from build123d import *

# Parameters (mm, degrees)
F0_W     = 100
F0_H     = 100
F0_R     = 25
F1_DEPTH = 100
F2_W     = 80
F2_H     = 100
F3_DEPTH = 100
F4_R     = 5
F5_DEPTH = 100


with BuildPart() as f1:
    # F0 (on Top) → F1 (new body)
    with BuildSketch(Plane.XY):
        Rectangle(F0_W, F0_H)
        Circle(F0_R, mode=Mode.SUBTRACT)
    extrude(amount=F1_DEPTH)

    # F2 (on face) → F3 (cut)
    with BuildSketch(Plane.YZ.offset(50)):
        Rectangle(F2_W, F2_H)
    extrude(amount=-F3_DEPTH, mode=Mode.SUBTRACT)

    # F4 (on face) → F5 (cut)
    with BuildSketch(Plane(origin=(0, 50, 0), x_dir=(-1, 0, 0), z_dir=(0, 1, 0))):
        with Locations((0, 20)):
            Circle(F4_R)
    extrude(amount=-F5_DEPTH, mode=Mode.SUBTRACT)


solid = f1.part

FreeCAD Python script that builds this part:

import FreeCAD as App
import Part
import Sketcher

doc = App.newDocument("Part")
params = doc.addObject("Spreadsheet::Sheet", "Params")
for row, (alias, value) in enumerate([
    ("sketch1_diameter", "50 mm"),
    ("sketch1_width", "100 mm"),
    ("pad1_length", "100 mm"),
    ("sketch2_width", "80 mm"),
    ("sketch2_height", "100 mm"),
    ("pocket1_length", "100 mm"),
    ("sketch3_diameter", "10 mm"),
    ("pocket2_length", "100 mm"),
], start=1):
    params.set(f"A{row}", alias)
    params.set(f"B{row}", "=" + value)
    params.setAlias(f"B{row}", alias)

body = doc.addObject("PartDesign::Body", "Body")

# Sketch on XY plane
sketch1 = body.newObject("Sketcher::SketchObject", "Sketch")
sketch1.AttachmentSupport = (doc.getObject("XY_Plane"), [""])
sketch1.MapMode = "FlatFace"
sketch1.addGeometry(Part.LineSegment(App.Vector(-50, 50, 0), App.Vector(-50, -50, 0)), False)
sketch1.addGeometry(Part.LineSegment(App.Vector(-50, -50, 0), App.Vector(50, -50, 0)), False)
sketch1.addGeometry(Part.LineSegment(App.Vector(50, -50, 0), App.Vector(50, 50, 0)), False)
sketch1.addGeometry(Part.LineSegment(App.Vector(50, 50, 0), App.Vector(-50, 50, 0)), False)
sketch1.addGeometry(Part.Circle(App.Vector(0, 0, 0), App.Vector(0, 0, 1), 25), False)
sketch1.addConstraint(Sketcher.Constraint("Coincident", 0, 2, 1, 1))
sketch1.addConstraint(Sketcher.Constraint("Coincident", 1, 2, 2, 1))
sketch1.addConstraint(Sketcher.Constraint("Coincident", 2, 2, 3, 1))
sketch1.addConstraint(Sketcher.Constraint("Coincident", 3, 2, 0, 1))
sketch1.addConstraint(Sketcher.Constraint("Vertical", 0))
sketch1.addConstraint(Sketcher.Constraint("Horizontal", 1))
sketch1.addConstraint(Sketcher.Constraint("Vertical", 2))
sketch1.addConstraint(Sketcher.Constraint("Horizontal", 3))
sketch1.addConstraint(Sketcher.Constraint("Coincident", 4, 3, -1, 1))
sketch1.addConstraint(Sketcher.Constraint("Symmetric", 0, 2, 2, 2, -1, 1))
sketch1.addConstraint(Sketcher.Constraint("Equal", 3, 0))
sketch1.addConstraint(Sketcher.Constraint("Diameter", 4, 50.0))
sketch1.addConstraint(Sketcher.Constraint("DistanceX", 1, 1, 1, 2, 100.0))
sketch1.setExpression("Constraints[11]", "Params.sketch1_diameter")
sketch1.setExpression("Constraints[12]", "Params.sketch1_width")
pad1 = body.newObject("PartDesign::Pad", "Pad")
pad1.Profile = sketch1
pad1.setExpression("Length", "Params.pad1_length")

# Sketch on YZ plane
sketch2 = body.newObject("Sketcher::SketchObject", "Sketch001")
sketch2.AttachmentSupport = (doc.getObject("YZ_Plane"), [""])
sketch2.MapMode = "FlatFace"
sketch2.AttachmentOffset = App.Placement(App.Vector(0, 0, 50), App.Rotation())
sketch2.addGeometry(Part.LineSegment(App.Vector(-40, 50, 0), App.Vector(-40, -50, 0)), False)
sketch2.addGeometry(Part.LineSegment(App.Vector(-40, -50, 0), App.Vector(40, -50, 0)), False)
sketch2.addGeometry(Part.LineSegment(App.Vector(40, -50, 0), App.Vector(40, 50, 0)), False)
sketch2.addGeometry(Part.LineSegment(App.Vector(40, 50, 0), App.Vector(-40, 50, 0)), False)
sketch2.addConstraint(Sketcher.Constraint("Coincident", 0, 2, 1, 1))
sketch2.addConstraint(Sketcher.Constraint("Coincident", 1, 2, 2, 1))
sketch2.addConstraint(Sketcher.Constraint("Coincident", 2, 2, 3, 1))
sketch2.addConstraint(Sketcher.Constraint("Coincident", 3, 2, 0, 1))
sketch2.addConstraint(Sketcher.Constraint("Vertical", 0))
sketch2.addConstraint(Sketcher.Constraint("Horizontal", 1))
sketch2.addConstraint(Sketcher.Constraint("Vertical", 2))
sketch2.addConstraint(Sketcher.Constraint("Horizontal", 3))
sketch2.addConstraint(Sketcher.Constraint("Symmetric", 0, 2, 2, 2, -1, 1))
sketch2.addConstraint(Sketcher.Constraint("DistanceX", 1, 1, 1, 2, 80.0))
sketch2.addConstraint(Sketcher.Constraint("DistanceY", 0, 2, 0, 1, 100.0))
sketch2.setExpression("Constraints[9]", "Params.sketch2_width")
sketch2.setExpression("Constraints[10]", "Params.sketch2_height")
pocket1 = body.newObject("PartDesign::Pocket", "Pocket")
pocket1.Profile = sketch2
pocket1.setExpression("Length", "Params.pocket1_length")

# Sketch on XZ plane
sketch3 = body.newObject("Sketcher::SketchObject", "Sketch002")
sketch3.AttachmentSupport = (doc.getObject("XZ_Plane"), [""])
sketch3.MapMode = "FlatFace"
sketch3.AttachmentOffset = App.Placement(App.Vector(0, 0, -50), App.Rotation())
sketch3.addGeometry(Part.Circle(App.Vector(0, 20, 0), App.Vector(0, 0, 1), 5), False)
sketch3.addConstraint(Sketcher.Constraint("PointOnObject", 0, 3, -2))
sketch3.addConstraint(Sketcher.Constraint("Diameter", 0, 10.0))
sketch3.addConstraint(Sketcher.Constraint("DistanceY", -1, 1, 0, 3, 20.0))
sketch3.setExpression("Constraints[1]", "Params.sketch3_diameter")
pocket2 = body.newObject("PartDesign::Pocket", "Pocket001")
pocket2.Profile = sketch3
pocket2.setExpression("Length", "Params.pocket2_length")
pocket2.Reversed = True

doc.recompute()
